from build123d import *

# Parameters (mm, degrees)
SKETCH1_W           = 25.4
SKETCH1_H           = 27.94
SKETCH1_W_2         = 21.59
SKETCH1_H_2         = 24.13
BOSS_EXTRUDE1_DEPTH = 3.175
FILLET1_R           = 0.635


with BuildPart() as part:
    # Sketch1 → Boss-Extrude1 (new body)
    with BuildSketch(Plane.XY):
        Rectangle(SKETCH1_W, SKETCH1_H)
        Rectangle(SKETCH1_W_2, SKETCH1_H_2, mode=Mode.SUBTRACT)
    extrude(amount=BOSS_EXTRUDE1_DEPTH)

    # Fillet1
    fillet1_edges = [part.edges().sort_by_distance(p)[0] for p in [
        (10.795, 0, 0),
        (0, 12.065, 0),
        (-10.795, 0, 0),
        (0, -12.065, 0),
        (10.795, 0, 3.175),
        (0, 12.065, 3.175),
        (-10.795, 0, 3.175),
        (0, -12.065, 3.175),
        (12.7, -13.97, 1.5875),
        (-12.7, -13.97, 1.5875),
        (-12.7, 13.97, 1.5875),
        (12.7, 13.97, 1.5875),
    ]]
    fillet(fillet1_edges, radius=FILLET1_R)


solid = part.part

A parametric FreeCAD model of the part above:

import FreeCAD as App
import Part
import Sketcher
Q = App.Units.Quantity


def edges_at(feature, points):
    """Names of the edges that pass closest to the given points."""
    edges = feature.Shape.Edges
    near = lambda p: min(range(len(edges)), key=lambda i: edges[i].distToShape(Part.Vertex(*p))[0])
    return sorted({f"Edge{near(p) + 1}" for p in points})

doc = App.newDocument("Part")
body = doc.addObject("PartDesign::Body", "Body")

# Sketch on XY plane
sketch1 = body.newObject("Sketcher::SketchObject", "Sketch")
sketch1.AttachmentSupport = (doc.getObject("XY_Plane"), [""])
sketch1.MapMode = "FlatFace"
sketch1.addGeometry([
    Part.LineSegment(App.Vector(-12.7, 13.97, 0), App.Vector(-12.7, -13.97, 0)),  # 0
    Part.LineSegment(App.Vector(-12.7, -13.97, 0), App.Vector(12.7, -13.97, 0)),  # 1
    Part.LineSegment(App.Vector(12.7, -13.97, 0), App.Vector(12.7, 13.97, 0)),  # 2
    Part.LineSegment(App.Vector(12.7, 13.97, 0), App.Vector(-12.7, 13.97, 0)),  # 3
    Part.LineSegment(App.Vector(10.795, -12.065, 0), App.Vector(-10.795, -12.065, 0)),  # 4
    Part.LineSegment(App.Vector(-10.795, -12.065, 0), App.Vector(-10.795, 12.065, 0)),  # 5
    Part.LineSegment(App.Vector(-10.795, 12.065, 0), App.Vector(10.795, 12.065, 0)),  # 6
    Part.LineSegment(App.Vector(10.795, 12.065, 0), App.Vector(10.795, -12.065, 0)),  # 7
], False)
sketch1.addConstraint([
    Sketcher.Constraint("Coincident", 0, 2, 1, 1),
    Sketcher.Constraint("Coincident", 1, 2, 2, 1),
    Sketcher.Constraint("Coincident", 2, 2, 3, 1),
    Sketcher.Constraint("Coincident", 3, 2, 0, 1),
    Sketcher.Constraint("Coincident", 4, 2, 5, 1),
    Sketcher.Constraint("Coincident", 5, 2, 6, 1),
    Sketcher.Constraint("Coincident", 6, 2, 7, 1),
    Sketcher.Constraint("Coincident", 7, 2, 4, 1),
    Sketcher.Constraint("Vertical", 0),
    Sketcher.Constraint("Horizontal", 1),
    Sketcher.Constraint("Vertical", 2),
    Sketcher.Constraint("Horizontal", 3),
    Sketcher.Constraint("Horizontal", 4),
    Sketcher.Constraint("Vertical", 5),
    Sketcher.Constraint("Horizontal", 6),
    Sketcher.Constraint("Vertical", 7),
    Sketcher.Constraint("Symmetric", 0, 2, 2, 2, -1, 1),
    Sketcher.Constraint("Symmetric", 4, 2, 6, 2, -1, 1),
    Sketcher.Constraint("DistanceX", 1, 1, 1, 2, Q("1 in")),
    Sketcher.Constraint("DistanceY", 0, 2, 0, 1, Q("1.1 in")),
    Sketcher.Constraint("DistanceX", 4, 2, 4, 1, Q("0.85 in")),
    Sketcher.Constraint("DistanceY", 5, 1, 5, 2, Q("0.95 in")),
])
pad1 = body.newObject("PartDesign::Pad", "Pad")
pad1.Profile = sketch1
pad1.Length = Q("0.125 in")
doc.recompute()

fillet = body.newObject("PartDesign::Fillet", "Fillet")
fillet.Base = (pad1, edges_at(pad1, [
    (10.795, 0, 0),
    (0, 12.065, 0),
    (-10.795, 0, 0),
    (0, -12.065, 0),
    (10.795, 0, 3.175),
    (0, 12.065, 3.175),
    (-10.795, 0, 3.175),
    (0, -12.065, 3.175),
    (12.7, -13.97, 1.587),
    (-12.7, -13.97, 1.587),
    (-12.7, 13.97, 1.587),
    (12.7, 13.97, 1.587),
]))
fillet.Radius = Q("0.025 in")

doc.recompute()
